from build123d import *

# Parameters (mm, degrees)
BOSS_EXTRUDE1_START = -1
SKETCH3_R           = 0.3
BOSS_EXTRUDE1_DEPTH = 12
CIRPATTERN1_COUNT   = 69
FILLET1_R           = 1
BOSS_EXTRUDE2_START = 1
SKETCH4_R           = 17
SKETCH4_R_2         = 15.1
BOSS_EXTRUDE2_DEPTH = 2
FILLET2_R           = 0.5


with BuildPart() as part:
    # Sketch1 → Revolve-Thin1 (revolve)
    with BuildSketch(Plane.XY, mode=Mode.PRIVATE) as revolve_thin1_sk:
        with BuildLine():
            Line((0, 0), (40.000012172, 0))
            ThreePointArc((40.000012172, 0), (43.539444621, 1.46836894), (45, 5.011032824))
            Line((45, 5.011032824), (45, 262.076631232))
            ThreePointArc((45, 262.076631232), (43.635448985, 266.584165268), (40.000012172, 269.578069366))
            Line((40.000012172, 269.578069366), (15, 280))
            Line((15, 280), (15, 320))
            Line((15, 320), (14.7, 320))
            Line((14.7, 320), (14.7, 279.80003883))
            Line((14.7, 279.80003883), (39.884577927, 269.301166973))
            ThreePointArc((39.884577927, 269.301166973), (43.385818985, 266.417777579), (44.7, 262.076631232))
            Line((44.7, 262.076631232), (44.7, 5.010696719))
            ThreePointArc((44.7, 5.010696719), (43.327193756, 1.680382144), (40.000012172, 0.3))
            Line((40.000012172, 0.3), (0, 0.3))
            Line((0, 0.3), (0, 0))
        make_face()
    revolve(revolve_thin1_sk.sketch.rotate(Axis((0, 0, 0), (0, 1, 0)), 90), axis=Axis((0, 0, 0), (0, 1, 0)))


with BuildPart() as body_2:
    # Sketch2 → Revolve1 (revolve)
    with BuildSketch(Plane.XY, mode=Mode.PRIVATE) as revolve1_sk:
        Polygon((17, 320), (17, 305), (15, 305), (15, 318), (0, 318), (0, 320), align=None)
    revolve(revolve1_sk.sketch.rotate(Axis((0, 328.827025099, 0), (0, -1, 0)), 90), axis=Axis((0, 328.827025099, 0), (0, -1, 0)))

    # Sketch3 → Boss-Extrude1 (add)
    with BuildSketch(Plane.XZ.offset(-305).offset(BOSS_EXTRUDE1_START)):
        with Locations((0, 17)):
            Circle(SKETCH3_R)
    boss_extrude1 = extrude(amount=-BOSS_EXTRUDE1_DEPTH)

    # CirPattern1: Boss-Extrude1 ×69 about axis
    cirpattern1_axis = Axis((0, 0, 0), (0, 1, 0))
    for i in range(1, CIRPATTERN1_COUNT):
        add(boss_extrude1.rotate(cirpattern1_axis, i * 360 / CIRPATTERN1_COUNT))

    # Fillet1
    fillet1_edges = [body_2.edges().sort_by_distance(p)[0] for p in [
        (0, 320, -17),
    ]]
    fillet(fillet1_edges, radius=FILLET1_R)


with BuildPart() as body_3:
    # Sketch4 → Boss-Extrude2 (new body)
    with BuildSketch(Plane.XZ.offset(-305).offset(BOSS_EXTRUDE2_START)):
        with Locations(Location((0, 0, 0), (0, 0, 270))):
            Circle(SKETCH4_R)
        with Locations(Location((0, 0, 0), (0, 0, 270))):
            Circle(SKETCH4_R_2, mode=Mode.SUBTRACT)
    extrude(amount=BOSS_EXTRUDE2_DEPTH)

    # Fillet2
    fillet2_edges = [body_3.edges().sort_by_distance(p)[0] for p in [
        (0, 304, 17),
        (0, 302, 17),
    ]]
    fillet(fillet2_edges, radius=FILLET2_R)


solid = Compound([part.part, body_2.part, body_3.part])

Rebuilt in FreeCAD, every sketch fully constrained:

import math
import FreeCAD as App
import Part
import Sketcher


def edges_at(feature, points):
    """Names of the edges that pass closest to the given points."""
    edges = feature.Shape.Edges
    near = lambda p: min(range(len(edges)), key=lambda i: edges[i].distToShape(Part.Vertex(*p))[0])
    return sorted({f"Edge{near(p) + 1}" for p in points})


def add_polygon(sketch, points):
    """Adds a closed chain of lines whose ends are joined by coincident constraints."""
    first, n = sketch.GeometryCount, len(points)
    for a, b in zip(points, points[1:] + points[:1]):
        sketch.addGeometry(Part.LineSegment(App.Vector(*a, 0), App.Vector(*b, 0)), False)
    for i in range(n):
        sketch.addConstraint(Sketcher.Constraint("Coincident", first + i, 2, first + (i + 1) % n, 1))

doc = App.newDocument("Part")
params = doc.addObject("Spreadsheet::Sheet", "Params")
for row, (alias, value) in enumerate([
    ("sketch1_radius", "5 mm"),
    ("sketch1_radius2", "4.7 mm"),
    ("sketch1_height", "40 mm"),
    ("revolution_angle", "360 deg"),
    ("sketch2_width", "17 mm"),
    ("sketch2_width2", "15 mm"),
    ("revolution2_angle", "360 deg"),
    ("sketch3_diameter", "0.6 mm"),
    ("pad1_length", "12 mm"),
    ("fillet_radius", "1 mm"),
    ("sketch4_diameter", "34 mm"),
    ("sketch4_diameter2", "30.2 mm"),
    ("pad2_length", "2 mm"),
    ("fillet2_radius", "0.5 mm"),
], start=1):
    params.set(f"A{row}", alias)
    params.set(f"B{row}", "=" + value)
    params.setAlias(f"B{row}", alias)

body = doc.addObject("PartDesign::Body", "Body")

# Sketch on XY plane
sketch1 = body.newObject("Sketcher::SketchObject", "Sketch")
sketch1.AttachmentSupport = (doc.getObject("XY_Plane"), [""])
sketch1.MapMode = "FlatFace"
sketch1.addGeometry([
    Part.LineSegment(App.Vector(0, 0, 0), App.Vector(40.000012, 0, 0)),  # 0
    Part.ArcOfCircle(Part.Circle(App.Vector(40.000012, 5, 0), App.Vector(0, 0, 1), 5), math.radians(-90), math.radians(0.126427)),  # 1
    Part.LineSegment(App.Vector(45, 5.011033, 0), App.Vector(45, 262.076631, 0)),  # 2
    Part.ArcOfCircle(Part.Circle(App.Vector(36.872835, 262.076631, 0), App.Vector(0, 0, 1), 8.127165), math.radians(0), math.radians(67.369866)),  # 3
    Part.LineSegment(App.Vector(40.000012, 269.578069, 0), App.Vector(15, 280, 0)),  # 4
    Part.LineSegment(App.Vector(15, 280, 0), App.Vector(15, 320, 0)),  # 5
    Part.LineSegment(App.Vector(15, 320, 0), App.Vector(14.7, 320, 0)),  # 6
    Part.LineSegment(App.Vector(14.7, 320, 0), App.Vector(14.7, 279.800039, 0)),  # 7
    Part.LineSegment(App.Vector(14.7, 279.800039, 0), App.Vector(39.884578, 269.301167, 0)),  # 8
    Part.ArcOfCircle(Part.Circle(App.Vector(36.872835, 262.076631, 0), App.Vector(0, 0, 1), 7.827165), math.radians(0), math.radians(67.369866)),  # 9
    Part.LineSegment(App.Vector(44.7, 262.076631, 0), App.Vector(44.7, 5.010697, 0)),  # 10
    Part.ArcOfCircle(Part.Circle(App.Vector(40.000012, 5, 0), App.Vector(0, 0, 1), 4.7), math.radians(-90), math.radians(0.130399)),  # 11
    Part.LineSegment(App.Vector(40.000012, 0.3, 0), App.Vector(0, 0.3, 0)),  # 12
    Part.LineSegment(App.Vector(0, 0.3, 0), App.Vector(0, 0, 0)),  # 13
], False)
sketch1.addConstraint([
    Sketcher.Constraint("Tangent", 0, 2, 1, 1),
    Sketcher.Constraint("Coincident", 1, 2, 2, 1),
    Sketcher.Constraint("Tangent", 2, 2, 3, 1),
    Sketcher.Constraint("Tangent", 3, 2, 4, 1),
    Sketcher.Constraint("Coincident", 4, 2, 5, 1),
    Sketcher.Constraint("Coincident", 5, 2, 6, 1),
    Sketcher.Constraint("Coincident", 6, 2, 7, 1),
    Sketcher.Constraint("Coincident", 7, 2, 8, 1),
    Sketcher.Constraint("Tangent", 8, 2, 9, 2),
    Sketcher.Constraint("Tangent", 9, 1, 10, 1),
    Sketcher.Constraint("Coincident", 10, 2, 11, 2),
    Sketcher.Constraint("Tangent", 11, 1, 12, 1),
    Sketcher.Constraint("Coincident", 12, 2, 13, 1),
    Sketcher.Constraint("Coincident", 13, 2, 0, 1),
    Sketcher.Constraint("Horizontal", 0),
    Sketcher.Constraint("Vertical", 2),
    Sketcher.Constraint("Vertical", 5),
    Sketcher.Constraint("Horizontal", 6),
    Sketcher.Constraint("Vertical", 7),
    Sketcher.Constraint("Vertical", 10),
    Sketcher.Constraint("Horizontal", 12),
    Sketcher.Constraint("Vertical", 13),
    Sketcher.Constraint("Coincident", 13, 2, -1, 1),
    Sketcher.Constraint("Coincident", 9, 3, 3, 3),
    Sketcher.Constraint("Coincident", 11, 3, 1, 3),
    Sketcher.Constraint("Parallel", 4, 8),
    Sketcher.Constraint("Vertical", 0, 2, 3, 2),
    Sketcher.Constraint("Equal", 6, 13),
    Sketcher.Constraint("Radius", 1, 5.0),
    Sketcher.Constraint("Radius", 11, 4.7),
    Sketcher.Constraint("DistanceY", 5, 1, 5, 2, 40.0),
    Sketcher.Constraint("DistanceX", -1, 1, 1, 2, 45.0),
    Sketcher.Constraint("DistanceX", -1, 1, 4, 2, 15.0),
    Sketcher.Constraint("DistanceY", -1, 1, 4, 2, 280.0),
    Sketcher.Constraint("DistanceX", -1, 1, 9, 1, 44.7),
    Sketcher.Constraint("DistanceY", 2, 1, 2, 2, 257.065598),
    Sketcher.Constraint("Radius", 3, 8.127165),
])
sketch1.setExpression("Constraints[28]", "Params.sketch1_radius")
sketch1.setExpression("Constraints[29]", "Params.sketch1_radius2")
sketch1.setExpression("Constraints[30]", "Params.sketch1_height")
revolution = body.newObject("PartDesign::Revolution", "Revolution")
revolution.Profile = sketch1
revolution.ReferenceAxis = (sketch1, ["V_Axis"])
revolution.setExpression("Angle", "Params.revolution_angle")
body2 = doc.addObject("PartDesign::Body", "Body001")

# Sketch on XY plane
sketch2 = body2.newObject("Sketcher::SketchObject", "Sketch001")
sketch2.AttachmentSupport = (doc.getObject("XY_Plane001"), [""])
sketch2.MapMode = "FlatFace"
add_polygon(sketch2, [(17, 305), (17, 320), (0, 320), (0, 318), (15, 318), (15, 305)])  # lines 0-5
sketch2.addConstraint([
    Sketcher.Constraint("Vertical", 0),
    Sketcher.Constraint("Horizontal", 1),
    Sketcher.Constraint("Vertical", 2),
    Sketcher.Constraint("Horizontal", 3),
    Sketcher.Constraint("Vertical", 4),
    Sketcher.Constraint("Horizontal", 5),
    Sketcher.Constraint("PointOnObject", 1, 2, -2),
    Sketcher.Constraint("Equal", 3, 0),
    Sketcher.Constraint("Equal", 5, 2),
    Sketcher.Constraint("DistanceX", 1, 2, 1, 1, 17.0),
    Sketcher.Constraint("DistanceX", 3, 1, 3, 2, 15.0),
    Sketcher.Constraint("DistanceY", -1, 1, 0, 2, 320.0),
])
sketch2.setExpression("Constraints[15]", "Params.sketch2_width")
sketch2.setExpression("Constraints[16]", "Params.sketch2_width2")
revolution2 = body2.newObject("PartDesign::Revolution", "Revolution001")
revolution2.Profile = sketch2
revolution2.ReferenceAxis = (sketch2, ["V_Axis"])
revolution2.setExpression("Angle", "Params.revolution2_angle")

# Sketch on XZ plane
sketch3 = body2.newObject("Sketcher::SketchObject", "Sketch002")
sketch3.AttachmentSupport = (doc.getObject("XZ_Plane001"), [""])
sketch3.MapMode = "FlatFace"
sketch3.AttachmentOffset = App.Placement(App.Vector(0, 0, -306), App.Rotation())
sketch3.addGeometry(Part.Circle(App.Vector(0, 17, 0), App.Vector(0, 0, 1), 0.3), False)
sketch3.addConstraint([
    Sketcher.Constraint("PointOnObject", 0, 3, -2),
    Sketcher.Constraint("Diameter", 0, 0.6),
    Sketcher.Constraint("DistanceY", -1, 1, 0, 3, 17.0),
])
sketch3.setExpression("Constraints[1]", "Params.sketch3_diameter")
pad1 = body2.newObject("PartDesign::Pad", "Pad")
pad1.Profile = sketch3
pad1.setExpression("Length", "Params.pad1_length")
pad1.Reversed = True
doc.recompute()

polarpattern = body2.newObject("PartDesign::PolarPattern", "PolarPattern")
polarpattern.Originals = [pad1]
polarpattern.Axis = (doc.getObject("Y_Axis001"), [""])
polarpattern.Angle = 360
polarpattern.Occurrences = 69
body2.Tip = polarpattern
doc.recompute()

fillet = body2.newObject("PartDesign::Fillet", "Fillet")
fillet.Base = (polarpattern, edges_at(polarpattern, [(0, 320, -17)]))
fillet.setExpression("Radius", "Params.fillet_radius")
body3 = doc.addObject("PartDesign::Body", "Body002")

# Sketch on XZ plane
sketch4 = body3.newObject("Sketcher::SketchObject", "Sketch003")
sketch4.AttachmentSupport = (doc.getObject("XZ_Plane002"), [""])
sketch4.MapMode = "FlatFace"
sketch4.AttachmentOffset = App.Placement(App.Vector(0, 0, -304), App.Rotation())
sketch4.addGeometry([
    Part.Circle(App.Vector(0, 0, 0), App.Vector(0, 0, 1), 17),
    Part.Circle(App.Vector(0, 0, 0), App.Vector(0, 0, 1), 15),
], False)
sketch4.addConstraint([
    Sketcher.Constraint("Coincident", 0, 3, -1, 1),
    Sketcher.Constraint("Coincident", 1, 3, -1, 1),
    Sketcher.Constraint("Diameter", 0, 34.0),
    Sketcher.Constraint("Diameter", 1, 30.2),
])
sketch4.setExpression("Constraints[2]", "Params.sketch4_diameter")
sketch4.setExpression("Constraints[3]", "Params.sketch4_diameter2")
pad2 = body3.newObject("PartDesign::Pad", "Pad001")
pad2.Profile = sketch4
pad2.setExpression("Length", "Params.pad2_length")
doc.recompute()

fillet2 = body3.newObject("PartDesign::Fillet", "Fillet001")
fillet2.Base = (pad2, edges_at(pad2, [(0, 304, 17), (0, 302, 17)]))
fillet2.setExpression("Radius", "Params.fillet2_radius")

doc.recompute()
